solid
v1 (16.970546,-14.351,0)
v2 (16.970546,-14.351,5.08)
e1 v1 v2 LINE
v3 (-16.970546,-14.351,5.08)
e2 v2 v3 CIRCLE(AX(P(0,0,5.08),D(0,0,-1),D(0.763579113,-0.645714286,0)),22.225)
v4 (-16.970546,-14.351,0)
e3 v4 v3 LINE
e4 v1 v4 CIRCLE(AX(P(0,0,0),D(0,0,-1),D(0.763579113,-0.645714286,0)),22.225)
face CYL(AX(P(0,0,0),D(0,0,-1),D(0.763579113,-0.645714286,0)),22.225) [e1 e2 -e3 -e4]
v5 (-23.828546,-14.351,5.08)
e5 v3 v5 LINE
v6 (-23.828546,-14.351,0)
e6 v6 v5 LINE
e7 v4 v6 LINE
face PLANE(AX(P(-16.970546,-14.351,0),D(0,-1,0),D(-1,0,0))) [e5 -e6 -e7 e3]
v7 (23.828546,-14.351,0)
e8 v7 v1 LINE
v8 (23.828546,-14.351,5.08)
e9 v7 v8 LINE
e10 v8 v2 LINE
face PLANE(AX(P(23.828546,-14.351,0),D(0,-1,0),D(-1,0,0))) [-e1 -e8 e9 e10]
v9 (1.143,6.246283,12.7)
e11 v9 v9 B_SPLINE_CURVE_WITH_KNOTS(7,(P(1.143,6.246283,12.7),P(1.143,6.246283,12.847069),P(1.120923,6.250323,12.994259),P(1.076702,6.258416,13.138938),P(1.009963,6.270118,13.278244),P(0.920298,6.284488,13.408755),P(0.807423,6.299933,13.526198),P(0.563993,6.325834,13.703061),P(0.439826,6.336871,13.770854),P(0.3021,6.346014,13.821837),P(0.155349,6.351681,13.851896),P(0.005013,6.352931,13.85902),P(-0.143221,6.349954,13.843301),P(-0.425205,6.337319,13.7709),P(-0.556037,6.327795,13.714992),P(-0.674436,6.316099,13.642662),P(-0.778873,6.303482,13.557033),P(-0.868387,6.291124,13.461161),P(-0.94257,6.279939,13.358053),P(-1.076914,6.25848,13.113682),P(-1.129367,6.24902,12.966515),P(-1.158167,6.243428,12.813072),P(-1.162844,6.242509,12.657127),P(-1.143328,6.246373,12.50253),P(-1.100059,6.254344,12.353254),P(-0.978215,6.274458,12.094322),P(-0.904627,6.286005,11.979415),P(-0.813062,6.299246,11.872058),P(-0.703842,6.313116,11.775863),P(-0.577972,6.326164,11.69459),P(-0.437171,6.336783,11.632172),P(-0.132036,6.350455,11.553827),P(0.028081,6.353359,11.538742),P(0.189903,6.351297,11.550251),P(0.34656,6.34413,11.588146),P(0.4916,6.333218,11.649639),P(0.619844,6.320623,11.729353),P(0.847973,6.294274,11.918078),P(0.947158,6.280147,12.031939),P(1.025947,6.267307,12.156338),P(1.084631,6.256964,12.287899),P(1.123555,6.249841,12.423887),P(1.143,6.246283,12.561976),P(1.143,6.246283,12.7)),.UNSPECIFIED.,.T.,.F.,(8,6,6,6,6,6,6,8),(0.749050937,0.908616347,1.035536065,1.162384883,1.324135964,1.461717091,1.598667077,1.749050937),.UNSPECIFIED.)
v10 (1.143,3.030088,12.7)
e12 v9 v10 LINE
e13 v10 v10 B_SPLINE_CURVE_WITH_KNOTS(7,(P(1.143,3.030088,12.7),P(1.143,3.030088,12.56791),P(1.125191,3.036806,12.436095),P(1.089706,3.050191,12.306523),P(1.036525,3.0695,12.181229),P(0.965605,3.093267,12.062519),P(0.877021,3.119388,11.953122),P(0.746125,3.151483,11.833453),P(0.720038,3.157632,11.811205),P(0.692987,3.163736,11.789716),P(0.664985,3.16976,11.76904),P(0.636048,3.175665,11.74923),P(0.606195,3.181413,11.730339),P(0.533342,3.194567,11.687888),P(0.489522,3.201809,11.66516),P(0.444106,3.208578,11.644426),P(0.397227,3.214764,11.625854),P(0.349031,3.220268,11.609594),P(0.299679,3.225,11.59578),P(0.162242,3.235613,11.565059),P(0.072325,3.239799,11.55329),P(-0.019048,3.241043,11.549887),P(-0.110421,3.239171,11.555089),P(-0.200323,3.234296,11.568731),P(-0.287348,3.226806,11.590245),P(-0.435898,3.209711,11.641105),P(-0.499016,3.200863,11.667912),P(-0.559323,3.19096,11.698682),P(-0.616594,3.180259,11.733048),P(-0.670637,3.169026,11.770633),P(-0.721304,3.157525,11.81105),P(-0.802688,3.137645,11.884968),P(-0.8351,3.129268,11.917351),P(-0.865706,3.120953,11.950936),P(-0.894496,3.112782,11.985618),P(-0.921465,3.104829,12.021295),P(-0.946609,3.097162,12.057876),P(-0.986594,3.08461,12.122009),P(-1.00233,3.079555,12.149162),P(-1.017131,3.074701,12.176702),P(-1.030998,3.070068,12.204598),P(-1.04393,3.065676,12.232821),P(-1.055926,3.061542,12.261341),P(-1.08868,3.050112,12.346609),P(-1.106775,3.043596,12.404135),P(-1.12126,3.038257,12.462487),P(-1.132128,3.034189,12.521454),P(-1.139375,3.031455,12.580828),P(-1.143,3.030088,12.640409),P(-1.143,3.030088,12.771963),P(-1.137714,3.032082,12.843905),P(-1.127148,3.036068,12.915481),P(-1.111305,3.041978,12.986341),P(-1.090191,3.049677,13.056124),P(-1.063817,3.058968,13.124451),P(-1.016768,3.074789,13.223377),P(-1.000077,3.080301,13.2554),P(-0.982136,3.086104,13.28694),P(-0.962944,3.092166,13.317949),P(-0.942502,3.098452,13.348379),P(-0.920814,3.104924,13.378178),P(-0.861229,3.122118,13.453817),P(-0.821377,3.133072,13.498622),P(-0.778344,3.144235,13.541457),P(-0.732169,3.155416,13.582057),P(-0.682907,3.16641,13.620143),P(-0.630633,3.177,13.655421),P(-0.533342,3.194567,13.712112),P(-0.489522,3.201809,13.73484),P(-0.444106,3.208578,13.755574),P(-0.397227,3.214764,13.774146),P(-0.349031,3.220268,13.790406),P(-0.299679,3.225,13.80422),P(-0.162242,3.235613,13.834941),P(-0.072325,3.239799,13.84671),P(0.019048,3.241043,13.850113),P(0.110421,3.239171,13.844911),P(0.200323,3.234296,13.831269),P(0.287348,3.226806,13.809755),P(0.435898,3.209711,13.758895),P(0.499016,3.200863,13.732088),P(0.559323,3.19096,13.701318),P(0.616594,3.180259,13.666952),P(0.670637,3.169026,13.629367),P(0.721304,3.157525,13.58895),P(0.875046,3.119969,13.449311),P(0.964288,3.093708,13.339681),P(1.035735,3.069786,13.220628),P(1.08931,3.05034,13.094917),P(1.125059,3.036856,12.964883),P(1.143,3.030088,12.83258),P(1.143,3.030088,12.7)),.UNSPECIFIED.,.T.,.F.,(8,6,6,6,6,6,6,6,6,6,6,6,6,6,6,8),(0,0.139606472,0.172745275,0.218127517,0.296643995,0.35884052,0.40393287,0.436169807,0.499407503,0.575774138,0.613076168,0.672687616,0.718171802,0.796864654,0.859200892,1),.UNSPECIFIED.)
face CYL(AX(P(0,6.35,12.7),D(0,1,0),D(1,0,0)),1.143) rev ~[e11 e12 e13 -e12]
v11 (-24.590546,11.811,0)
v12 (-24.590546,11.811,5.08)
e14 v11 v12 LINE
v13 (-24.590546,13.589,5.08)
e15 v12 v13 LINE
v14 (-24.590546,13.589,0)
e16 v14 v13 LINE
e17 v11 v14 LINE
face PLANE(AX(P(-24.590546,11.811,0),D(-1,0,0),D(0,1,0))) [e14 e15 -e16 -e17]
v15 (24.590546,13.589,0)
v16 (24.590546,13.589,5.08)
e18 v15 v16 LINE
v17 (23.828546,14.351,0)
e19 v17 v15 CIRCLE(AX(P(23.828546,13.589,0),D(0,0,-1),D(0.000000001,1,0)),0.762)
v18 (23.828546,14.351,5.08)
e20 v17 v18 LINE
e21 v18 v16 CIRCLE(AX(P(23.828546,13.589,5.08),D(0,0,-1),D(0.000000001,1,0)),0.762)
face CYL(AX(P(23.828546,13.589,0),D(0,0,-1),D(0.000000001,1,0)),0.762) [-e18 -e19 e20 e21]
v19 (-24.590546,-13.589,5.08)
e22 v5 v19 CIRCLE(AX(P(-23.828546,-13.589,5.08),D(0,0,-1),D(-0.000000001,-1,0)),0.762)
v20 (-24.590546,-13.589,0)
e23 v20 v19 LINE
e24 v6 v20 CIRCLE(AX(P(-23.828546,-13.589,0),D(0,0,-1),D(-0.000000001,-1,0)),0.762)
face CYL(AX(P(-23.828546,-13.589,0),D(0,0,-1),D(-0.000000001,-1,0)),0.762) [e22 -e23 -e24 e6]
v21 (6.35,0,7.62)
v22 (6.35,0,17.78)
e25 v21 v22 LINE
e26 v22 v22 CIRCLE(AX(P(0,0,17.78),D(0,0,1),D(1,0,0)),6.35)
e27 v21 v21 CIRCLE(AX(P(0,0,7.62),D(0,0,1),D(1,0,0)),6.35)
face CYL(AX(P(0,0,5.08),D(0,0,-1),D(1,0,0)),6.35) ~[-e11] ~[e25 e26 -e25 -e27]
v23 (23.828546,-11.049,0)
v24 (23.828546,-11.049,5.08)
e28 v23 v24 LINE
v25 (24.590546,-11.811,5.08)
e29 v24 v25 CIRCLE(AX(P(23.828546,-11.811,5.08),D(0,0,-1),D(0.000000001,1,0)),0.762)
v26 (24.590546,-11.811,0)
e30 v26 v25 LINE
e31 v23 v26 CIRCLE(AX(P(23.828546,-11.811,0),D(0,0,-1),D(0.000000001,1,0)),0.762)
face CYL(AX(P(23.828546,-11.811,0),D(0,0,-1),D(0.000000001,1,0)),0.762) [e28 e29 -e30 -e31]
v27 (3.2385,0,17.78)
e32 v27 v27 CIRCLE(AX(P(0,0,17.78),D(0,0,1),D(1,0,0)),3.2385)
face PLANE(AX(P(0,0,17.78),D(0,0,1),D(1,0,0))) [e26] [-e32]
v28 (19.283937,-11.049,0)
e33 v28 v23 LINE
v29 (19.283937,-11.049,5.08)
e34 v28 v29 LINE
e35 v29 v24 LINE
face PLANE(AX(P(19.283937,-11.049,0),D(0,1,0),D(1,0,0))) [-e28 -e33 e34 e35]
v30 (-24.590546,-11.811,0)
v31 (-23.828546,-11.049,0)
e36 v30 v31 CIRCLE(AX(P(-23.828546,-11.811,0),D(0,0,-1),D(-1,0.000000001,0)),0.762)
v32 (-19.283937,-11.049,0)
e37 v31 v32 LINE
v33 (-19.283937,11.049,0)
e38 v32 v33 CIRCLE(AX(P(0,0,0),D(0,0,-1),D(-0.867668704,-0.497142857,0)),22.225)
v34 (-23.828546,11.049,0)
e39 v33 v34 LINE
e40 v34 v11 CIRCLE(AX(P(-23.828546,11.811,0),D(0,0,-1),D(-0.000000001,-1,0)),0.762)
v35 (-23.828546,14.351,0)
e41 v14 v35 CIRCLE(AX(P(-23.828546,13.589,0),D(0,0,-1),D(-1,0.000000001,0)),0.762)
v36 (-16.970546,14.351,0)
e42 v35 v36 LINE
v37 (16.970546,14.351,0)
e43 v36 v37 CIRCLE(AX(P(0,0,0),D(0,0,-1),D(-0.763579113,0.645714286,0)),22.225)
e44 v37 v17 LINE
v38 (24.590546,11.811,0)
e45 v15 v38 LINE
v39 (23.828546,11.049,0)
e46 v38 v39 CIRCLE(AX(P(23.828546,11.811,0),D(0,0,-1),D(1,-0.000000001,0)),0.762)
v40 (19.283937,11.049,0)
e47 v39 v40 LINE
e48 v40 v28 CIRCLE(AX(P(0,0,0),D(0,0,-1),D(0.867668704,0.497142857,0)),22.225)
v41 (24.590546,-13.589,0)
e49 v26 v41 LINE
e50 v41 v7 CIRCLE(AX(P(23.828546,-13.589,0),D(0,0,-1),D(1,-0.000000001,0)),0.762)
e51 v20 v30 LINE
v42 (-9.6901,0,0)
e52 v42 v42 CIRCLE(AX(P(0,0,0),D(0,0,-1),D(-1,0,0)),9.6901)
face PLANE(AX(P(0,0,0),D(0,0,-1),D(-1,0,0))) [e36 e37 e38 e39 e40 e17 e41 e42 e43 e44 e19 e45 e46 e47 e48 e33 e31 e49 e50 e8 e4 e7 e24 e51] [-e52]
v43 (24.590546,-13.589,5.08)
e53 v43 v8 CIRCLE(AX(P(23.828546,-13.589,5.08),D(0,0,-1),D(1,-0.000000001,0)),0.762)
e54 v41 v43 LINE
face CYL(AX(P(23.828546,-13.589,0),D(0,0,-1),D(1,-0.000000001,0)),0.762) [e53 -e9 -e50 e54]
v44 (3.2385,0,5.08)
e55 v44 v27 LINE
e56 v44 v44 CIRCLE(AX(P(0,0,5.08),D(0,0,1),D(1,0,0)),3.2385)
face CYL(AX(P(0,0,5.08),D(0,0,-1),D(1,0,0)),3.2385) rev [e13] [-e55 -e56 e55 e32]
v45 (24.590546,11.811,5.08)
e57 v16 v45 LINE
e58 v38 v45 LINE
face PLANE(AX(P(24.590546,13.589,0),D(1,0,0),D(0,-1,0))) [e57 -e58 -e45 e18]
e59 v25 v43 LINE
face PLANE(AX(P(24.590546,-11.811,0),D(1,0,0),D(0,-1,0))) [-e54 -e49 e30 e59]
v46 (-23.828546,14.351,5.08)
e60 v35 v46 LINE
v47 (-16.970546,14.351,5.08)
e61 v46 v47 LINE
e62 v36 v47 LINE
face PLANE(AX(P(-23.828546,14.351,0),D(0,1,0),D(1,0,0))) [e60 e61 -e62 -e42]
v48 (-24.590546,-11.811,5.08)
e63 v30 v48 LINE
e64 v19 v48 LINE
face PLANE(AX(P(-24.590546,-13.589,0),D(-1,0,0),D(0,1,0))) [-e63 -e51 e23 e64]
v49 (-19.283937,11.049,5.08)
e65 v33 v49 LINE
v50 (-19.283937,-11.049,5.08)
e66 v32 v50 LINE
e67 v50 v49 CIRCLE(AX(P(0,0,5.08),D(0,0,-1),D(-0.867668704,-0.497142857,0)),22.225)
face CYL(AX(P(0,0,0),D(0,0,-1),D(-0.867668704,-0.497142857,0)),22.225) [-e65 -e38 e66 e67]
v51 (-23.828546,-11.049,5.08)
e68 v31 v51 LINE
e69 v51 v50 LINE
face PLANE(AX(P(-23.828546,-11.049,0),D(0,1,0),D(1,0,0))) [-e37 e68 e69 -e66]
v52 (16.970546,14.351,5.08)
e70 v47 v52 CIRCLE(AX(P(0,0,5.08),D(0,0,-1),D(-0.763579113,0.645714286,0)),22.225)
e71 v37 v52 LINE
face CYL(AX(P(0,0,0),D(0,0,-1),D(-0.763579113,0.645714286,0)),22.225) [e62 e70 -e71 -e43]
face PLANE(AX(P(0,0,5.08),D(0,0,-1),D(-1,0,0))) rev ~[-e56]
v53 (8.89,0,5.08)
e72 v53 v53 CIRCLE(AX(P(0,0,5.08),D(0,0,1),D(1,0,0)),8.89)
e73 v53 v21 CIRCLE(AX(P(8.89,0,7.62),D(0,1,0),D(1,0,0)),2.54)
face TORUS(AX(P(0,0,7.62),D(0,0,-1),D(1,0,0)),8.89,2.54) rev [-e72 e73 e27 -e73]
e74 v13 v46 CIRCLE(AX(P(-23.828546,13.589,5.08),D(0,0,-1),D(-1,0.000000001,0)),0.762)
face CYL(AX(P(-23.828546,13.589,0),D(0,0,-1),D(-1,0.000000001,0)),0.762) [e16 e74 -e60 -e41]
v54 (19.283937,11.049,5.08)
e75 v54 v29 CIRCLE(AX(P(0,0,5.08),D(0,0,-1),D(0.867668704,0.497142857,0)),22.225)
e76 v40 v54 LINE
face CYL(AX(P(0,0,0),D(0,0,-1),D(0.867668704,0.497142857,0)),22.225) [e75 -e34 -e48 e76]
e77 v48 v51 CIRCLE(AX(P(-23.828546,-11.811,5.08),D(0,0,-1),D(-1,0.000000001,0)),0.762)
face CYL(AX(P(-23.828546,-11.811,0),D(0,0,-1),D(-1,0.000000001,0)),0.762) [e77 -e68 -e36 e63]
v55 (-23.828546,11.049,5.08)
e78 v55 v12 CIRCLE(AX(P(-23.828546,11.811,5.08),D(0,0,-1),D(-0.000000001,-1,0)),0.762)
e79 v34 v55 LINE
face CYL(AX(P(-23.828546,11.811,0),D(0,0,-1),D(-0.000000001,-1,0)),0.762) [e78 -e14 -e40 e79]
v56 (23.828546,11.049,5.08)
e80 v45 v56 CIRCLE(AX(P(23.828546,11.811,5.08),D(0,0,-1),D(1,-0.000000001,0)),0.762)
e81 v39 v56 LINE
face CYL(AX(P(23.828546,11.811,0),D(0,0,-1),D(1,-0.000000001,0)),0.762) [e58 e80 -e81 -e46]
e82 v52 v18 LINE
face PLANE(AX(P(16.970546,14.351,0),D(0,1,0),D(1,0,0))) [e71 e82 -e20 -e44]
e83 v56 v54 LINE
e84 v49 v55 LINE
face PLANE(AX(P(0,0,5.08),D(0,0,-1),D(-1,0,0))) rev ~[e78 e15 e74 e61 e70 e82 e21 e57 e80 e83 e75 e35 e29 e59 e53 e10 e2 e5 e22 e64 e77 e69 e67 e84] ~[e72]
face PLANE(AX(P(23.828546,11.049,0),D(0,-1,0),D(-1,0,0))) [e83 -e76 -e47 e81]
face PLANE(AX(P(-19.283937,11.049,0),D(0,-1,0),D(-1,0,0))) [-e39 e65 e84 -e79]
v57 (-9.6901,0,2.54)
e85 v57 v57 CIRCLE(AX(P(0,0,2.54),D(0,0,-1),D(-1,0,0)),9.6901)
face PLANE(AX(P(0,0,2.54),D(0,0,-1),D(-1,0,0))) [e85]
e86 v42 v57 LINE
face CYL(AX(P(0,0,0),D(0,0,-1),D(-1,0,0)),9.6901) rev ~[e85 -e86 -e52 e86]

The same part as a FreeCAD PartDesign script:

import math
import FreeCAD as App
import Part
import Sketcher
Q = App.Units.Quantity


def edges_at(feature, points):
    """Names of the edges that pass closest to the given points."""
    edges = feature.Shape.Edges
    near = lambda p: min(range(len(edges)), key=lambda i: edges[i].distToShape(Part.Vertex(*p))[0])
    return sorted({f"Edge{near(p) + 1}" for p in points})

doc = App.newDocument("Part")
params = doc.addObject("Spreadsheet::Sheet", "Params")
for row, (alias, value) in enumerate([
    ("sketch1_radius", "0.03 in"),
    ("sketch1_radius2", "0.875 in"),
    ("sketch1_width", "0.27 in"),
    ("sketch1_height", "0.07 in"),
    ("pad1_length", "0.2 in"),
    ("sketch2_diameter", "0.763 in"),
    ("pocket1_length", "0.1 in"),
    ("sketch3_diameter", "0.5 in"),
    ("sketch3_diameter2", "0.255 in"),
    ("pad2_length", "0.5 in"),
    ("fillet_radius", "0.1 in"),
    ("sketch4_diameter", "0.09 in"),
    ("pocket2_length", "0.3 in"),
], start=1):
    params.set(f"A{row}", alias)
    params.set(f"B{row}", "=" + value)
    params.setAlias(f"B{row}", alias)

body = doc.addObject("PartDesign::Body", "Body")

# Sketch on XY plane
sketch1 = body.newObject("Sketcher::SketchObject", "Sketch")
sketch1.AttachmentSupport = (doc.getObject("XY_Plane"), [""])
sketch1.MapMode = "FlatFace"
sketch1.addGeometry([
    Part.LineSegment(App.Vector(-17, 14.4, 0), App.Vector(-23.8, 14.4, 0)),  # 0
    Part.ArcOfCircle(Part.Circle(App.Vector(-23.8, 13.6, 0), App.Vector(0, 0, 1), 0.8), math.radians(90), math.radians(180)),  # 1
    Part.LineSegment(App.Vector(-24.6, 13.6, 0), App.Vector(-24.6, 11.8, 0)),  # 2
    Part.ArcOfCircle(Part.Circle(App.Vector(-23.8, 11.8, 0), App.Vector(0, 0, 1), 0.8), math.radians(-180), math.radians(-90)),  # 3
    Part.LineSegment(App.Vector(-23.8, 11, 0), App.Vector(-19.3, 11, 0)),  # 4
    Part.ArcOfCircle(Part.Circle(App.Vector(0, 0, 0), App.Vector(0, 0, 1), 22.2), math.radians(150), math.radians(210)),  # 5
    Part.LineSegment(App.Vector(-19.3, -11, 0), App.Vector(-23.8, -11, 0)),  # 6
    Part.ArcOfCircle(Part.Circle(App.Vector(-23.8, -11.8, 0), App.Vector(0, 0, 1), 0.8), math.radians(90), math.radians(180)),  # 7
    Part.LineSegment(App.Vector(-24.6, -11.8, 0), App.Vector(-24.6, -13.6, 0)),  # 8
    Part.ArcOfCircle(Part.Circle(App.Vector(-23.8, -13.6, 0), App.Vector(0, 0, 1), 0.8), math.radians(-180), math.radians(-90)),  # 9
    Part.LineSegment(App.Vector(-23.8, -14.4, 0), App.Vector(-17, -14.4, 0)),  # 10
    Part.ArcOfCircle(Part.Circle(App.Vector(0, 0, 0), App.Vector(0, 0, 1), 22.2), math.radians(-140), math.radians(-40)),  # 11
    Part.LineSegment(App.Vector(17, -14.4, 0), App.Vector(23.8, -14.4, 0)),  # 12
    Part.ArcOfCircle(Part.Circle(App.Vector(23.8, -13.6, 0), App.Vector(0, 0, 1), 0.8), math.radians(-90), math.radians(0)),  # 13
    Part.LineSegment(App.Vector(24.6, -13.6, 0), App.Vector(24.6, -11.8, 0)),  # 14
    Part.ArcOfCircle(Part.Circle(App.Vector(23.8, -11.8, 0), App.Vector(0, 0, 1), 0.8), math.radians(0), math.radians(90)),  # 15
    Part.LineSegment(App.Vector(23.8, -11, 0), App.Vector(19.3, -11, 0)),  # 16
    Part.ArcOfCircle(Part.Circle(App.Vector(0, 0, 0), App.Vector(0, 0, 1), 22.2), math.radians(-30), math.radians(30)),  # 17
    Part.LineSegment(App.Vector(19.3, 11, 0), App.Vector(23.8, 11, 0)),  # 18
    Part.ArcOfCircle(Part.Circle(App.Vector(23.8, 11.8, 0), App.Vector(0, 0, 1), 0.8), math.radians(-90), math.radians(0)),  # 19
    Part.LineSegment(App.Vector(24.6, 11.8, 0), App.Vector(24.6, 13.6, 0)),  # 20
    Part.ArcOfCircle(Part.Circle(App.Vector(23.8, 13.6, 0), App.Vector(0, 0, 1), 0.8), math.radians(0), math.radians(90)),  # 21
    Part.LineSegment(App.Vector(23.8, 14.4, 0), App.Vector(17, 14.4, 0)),  # 22
    Part.ArcOfCircle(Part.Circle(App.Vector(0, 0, 0), App.Vector(0, 0, 1), 22.2), math.radians(40), math.radians(140)),  # 23
], False)
sketch1.addConstraint([
    Sketcher.Constraint("Tangent", 0, 2, 1, 1),
    Sketcher.Constraint("Tangent", 1, 2, 2, 1),
    Sketcher.Constraint("Tangent", 2, 2, 3, 1),
    Sketcher.Constraint("Tangent", 3, 2, 4, 1),
    Sketcher.Constraint("Coincident", 4, 2, 5, 1),
    Sketcher.Constraint("Coincident", 5, 2, 6, 1),
    Sketcher.Constraint("Tangent", 6, 2, 7, 1),
    Sketcher.Constraint("Tangent", 7, 2, 8, 1),
    Sketcher.Constraint("Tangent", 8, 2, 9, 1),
    Sketcher.Constraint("Tangent", 9, 2, 10, 1),
    Sketcher.Constraint("Coincident", 10, 2, 11, 1),
    Sketcher.Constraint("Coincident", 11, 2, 12, 1),
    Sketcher.Constraint("Tangent", 12, 2, 13, 1),
    Sketcher.Constraint("Tangent", 13, 2, 14, 1),
    Sketcher.Constraint("Tangent", 14, 2, 15, 1),
    Sketcher.Constraint("Tangent", 15, 2, 16, 1),
    Sketcher.Constraint("Coincident", 16, 2, 17, 1),
    Sketcher.Constraint("Coincident", 17, 2, 18, 1),
    Sketcher.Constraint("Tangent", 18, 2, 19, 1),
    Sketcher.Constraint("Tangent", 19, 2, 20, 1),
    Sketcher.Constraint("Tangent", 20, 2, 21, 1),
    Sketcher.Constraint("Tangent", 21, 2, 22, 1),
    Sketcher.Constraint("Coincident", 22, 2, 23, 1),
    Sketcher.Constraint("Coincident", 23, 2, 0, 1),
    Sketcher.Constraint("Horizontal", 0),
    Sketcher.Constraint("Vertical", 2),
    Sketcher.Constraint("Horizontal", 4),
    Sketcher.Constraint("Horizontal", 6),
    Sketcher.Constraint("Vertical", 8),
    Sketcher.Constraint("Horizontal", 10),
    Sketcher.Constraint("Horizontal", 12),
    Sketcher.Constraint("Vertical", 14),
    Sketcher.Constraint("Horizontal", 16),
    Sketcher.Constraint("Horizontal", 18),
    Sketcher.Constraint("Vertical", 20),
    Sketcher.Constraint("Horizontal", 22),
    Sketcher.Constraint("Coincident", 5, 3, -1, 1),
    Sketcher.Constraint("Coincident", 11, 3, -1, 1),
    Sketcher.Constraint("Coincident", 17, 3, -1, 1),
    Sketcher.Constraint("Coincident", 23, 3, -1, 1),
    Sketcher.Constraint("Equal", 1, 3),
    Sketcher.Constraint("Equal", 3, 7),
    Sketcher.Constraint("Equal", 7, 9),
    Sketcher.Constraint("Equal", 5, 11),
    Sketcher.Constraint("Equal", 9, 13),
    Sketcher.Constraint("Equal", 13, 15),
    Sketcher.Constraint("Equal", 11, 17),
    Sketcher.Constraint("Equal", 15, 19),
    Sketcher.Constraint("Equal", 19, 21),
    Sketcher.Constraint("Equal", 17, 23),
    Sketcher.Constraint("Symmetric", 1, 3, 13, 3, -1, 1),
    Sketcher.Constraint("Symmetric", 7, 3, 19, 3, -1, 1),
    Sketcher.Constraint("Symmetric", 9, 3, 13, 3, -2),
    Sketcher.Constraint("Horizontal", 7, 3, 15, 3),
    Sketcher.Constraint("Horizontal", 3, 3, 19, 3),
    Sketcher.Constraint("Horizontal", 1, 3, 21, 3),
    Sketcher.Constraint("Radius", 1, Q("0.03 in")),
    Sketcher.Constraint("Radius", 5, Q("0.875 in")),
    Sketcher.Constraint("DistanceY", 7, 3, 1, 3, Q("1 in")),
    Sketcher.Constraint("DistanceX", 0, 2, 0, 1, Q("0.27 in")),
    Sketcher.Constraint("DistanceY", 2, 2, 2, 1, Q("0.07 in")),
])
sketch1.setExpression("Constraints[56]", "Params.sketch1_radius")
sketch1.setExpression("Constraints[57]", "Params.sketch1_radius2")
sketch1.setExpression("Constraints[59]", "Params.sketch1_width")
sketch1.setExpression("Constraints[60]", "Params.sketch1_height")
pad1 = body.newObject("PartDesign::Pad", "Pad")
pad1.Profile = sketch1
pad1.setExpression("Length", "Params.pad1_length")

# Sketch on XY plane
sketch2 = body.newObject("Sketcher::SketchObject", "Sketch001")
sketch2.AttachmentSupport = (doc.getObject("XY_Plane"), [""])
sketch2.MapMode = "FlatFace"
sketch2.addGeometry(Part.Circle(App.Vector(0, 0, 0), App.Vector(0, 0, 1), 10), False)
sketch2.addConstraint([
    Sketcher.Constraint("Coincident", 0, 3, -1, 1),
    Sketcher.Constraint("Diameter", 0, Q("0.763 in")),
])
sketch2.setExpression("Constraints[1]", "Params.sketch2_diameter")
pocket1 = body.newObject("PartDesign::Pocket", "Pocket")
pocket1.Profile = sketch2
pocket1.setExpression("Length", "Params.pocket1_length")
pocket1.Reversed = True

# Sketch on XY plane
sketch3 = body.newObject("Sketcher::SketchObject", "Sketch002")
sketch3.AttachmentSupport = (doc.getObject("XY_Plane"), [""])
sketch3.MapMode = "FlatFace"
sketch3.AttachmentOffset = App.Placement(App.Vector(0, 0, 0.2 * 25.4), App.Rotation())
sketch3.addGeometry([
    Part.Circle(App.Vector(0, 0, 0), App.Vector(0, 0, 1), 6.3),
    Part.Circle(App.Vector(0, 0, 0), App.Vector(0, 0, 1), 3.2),
], False)
sketch3.addConstraint([
    Sketcher.Constraint("Coincident", 0, 3, -1, 1),
    Sketcher.Constraint("Coincident", 1, 3, -1, 1),
    Sketcher.Constraint("Diameter", 0, Q("0.5 in")),
    Sketcher.Constraint("Diameter", 1, Q("0.255 in")),
])
sketch3.setExpression("Constraints[2]", "Params.sketch3_diameter")
sketch3.setExpression("Constraints[3]", "Params.sketch3_diameter2")
pad2 = body.newObject("PartDesign::Pad", "Pad001")
pad2.Profile = sketch3
pad2.setExpression("Length", "Params.pad2_length")
doc.recompute()

fillet = body.newObject("PartDesign::Fillet", "Fillet")
fillet.Base = (pad2, edges_at(pad2, [(-6.35, 0, 5.08)]))
fillet.setExpression("Radius", "Params.fillet_radius")

# Sketch on XZ plane
sketch4 = body.newObject("Sketcher::SketchObject", "Sketch003")
sketch4.AttachmentSupport = (doc.getObject("XZ_Plane"), [""])
sketch4.MapMode = "FlatFace"
sketch4.AttachmentOffset = App.Placement(App.Vector(0, 0, -0.25 * 25.4), App.Rotation())
sketch4.addGeometry(Part.Circle(App.Vector(0, 12.7, 0), App.Vector(0, 0, 1), 1.1), False)
sketch4.addConstraint([
    Sketcher.Constraint("PointOnObject", 0, 3, -2),
    Sketcher.Constraint("Diameter", 0, Q("0.09 in")),
    Sketcher.Constraint("DistanceY", -1, 1, 0, 3, Q("0.5 in")),
])
sketch4.setExpression("Constraints[1]", "Params.sketch4_diameter")
pocket2 = body.newObject("PartDesign::Pocket", "Pocket001")
pocket2.Profile = sketch4
pocket2.setExpression("Length", "Params.pocket2_length")
pocket2.Reversed = True

doc.recompute()
